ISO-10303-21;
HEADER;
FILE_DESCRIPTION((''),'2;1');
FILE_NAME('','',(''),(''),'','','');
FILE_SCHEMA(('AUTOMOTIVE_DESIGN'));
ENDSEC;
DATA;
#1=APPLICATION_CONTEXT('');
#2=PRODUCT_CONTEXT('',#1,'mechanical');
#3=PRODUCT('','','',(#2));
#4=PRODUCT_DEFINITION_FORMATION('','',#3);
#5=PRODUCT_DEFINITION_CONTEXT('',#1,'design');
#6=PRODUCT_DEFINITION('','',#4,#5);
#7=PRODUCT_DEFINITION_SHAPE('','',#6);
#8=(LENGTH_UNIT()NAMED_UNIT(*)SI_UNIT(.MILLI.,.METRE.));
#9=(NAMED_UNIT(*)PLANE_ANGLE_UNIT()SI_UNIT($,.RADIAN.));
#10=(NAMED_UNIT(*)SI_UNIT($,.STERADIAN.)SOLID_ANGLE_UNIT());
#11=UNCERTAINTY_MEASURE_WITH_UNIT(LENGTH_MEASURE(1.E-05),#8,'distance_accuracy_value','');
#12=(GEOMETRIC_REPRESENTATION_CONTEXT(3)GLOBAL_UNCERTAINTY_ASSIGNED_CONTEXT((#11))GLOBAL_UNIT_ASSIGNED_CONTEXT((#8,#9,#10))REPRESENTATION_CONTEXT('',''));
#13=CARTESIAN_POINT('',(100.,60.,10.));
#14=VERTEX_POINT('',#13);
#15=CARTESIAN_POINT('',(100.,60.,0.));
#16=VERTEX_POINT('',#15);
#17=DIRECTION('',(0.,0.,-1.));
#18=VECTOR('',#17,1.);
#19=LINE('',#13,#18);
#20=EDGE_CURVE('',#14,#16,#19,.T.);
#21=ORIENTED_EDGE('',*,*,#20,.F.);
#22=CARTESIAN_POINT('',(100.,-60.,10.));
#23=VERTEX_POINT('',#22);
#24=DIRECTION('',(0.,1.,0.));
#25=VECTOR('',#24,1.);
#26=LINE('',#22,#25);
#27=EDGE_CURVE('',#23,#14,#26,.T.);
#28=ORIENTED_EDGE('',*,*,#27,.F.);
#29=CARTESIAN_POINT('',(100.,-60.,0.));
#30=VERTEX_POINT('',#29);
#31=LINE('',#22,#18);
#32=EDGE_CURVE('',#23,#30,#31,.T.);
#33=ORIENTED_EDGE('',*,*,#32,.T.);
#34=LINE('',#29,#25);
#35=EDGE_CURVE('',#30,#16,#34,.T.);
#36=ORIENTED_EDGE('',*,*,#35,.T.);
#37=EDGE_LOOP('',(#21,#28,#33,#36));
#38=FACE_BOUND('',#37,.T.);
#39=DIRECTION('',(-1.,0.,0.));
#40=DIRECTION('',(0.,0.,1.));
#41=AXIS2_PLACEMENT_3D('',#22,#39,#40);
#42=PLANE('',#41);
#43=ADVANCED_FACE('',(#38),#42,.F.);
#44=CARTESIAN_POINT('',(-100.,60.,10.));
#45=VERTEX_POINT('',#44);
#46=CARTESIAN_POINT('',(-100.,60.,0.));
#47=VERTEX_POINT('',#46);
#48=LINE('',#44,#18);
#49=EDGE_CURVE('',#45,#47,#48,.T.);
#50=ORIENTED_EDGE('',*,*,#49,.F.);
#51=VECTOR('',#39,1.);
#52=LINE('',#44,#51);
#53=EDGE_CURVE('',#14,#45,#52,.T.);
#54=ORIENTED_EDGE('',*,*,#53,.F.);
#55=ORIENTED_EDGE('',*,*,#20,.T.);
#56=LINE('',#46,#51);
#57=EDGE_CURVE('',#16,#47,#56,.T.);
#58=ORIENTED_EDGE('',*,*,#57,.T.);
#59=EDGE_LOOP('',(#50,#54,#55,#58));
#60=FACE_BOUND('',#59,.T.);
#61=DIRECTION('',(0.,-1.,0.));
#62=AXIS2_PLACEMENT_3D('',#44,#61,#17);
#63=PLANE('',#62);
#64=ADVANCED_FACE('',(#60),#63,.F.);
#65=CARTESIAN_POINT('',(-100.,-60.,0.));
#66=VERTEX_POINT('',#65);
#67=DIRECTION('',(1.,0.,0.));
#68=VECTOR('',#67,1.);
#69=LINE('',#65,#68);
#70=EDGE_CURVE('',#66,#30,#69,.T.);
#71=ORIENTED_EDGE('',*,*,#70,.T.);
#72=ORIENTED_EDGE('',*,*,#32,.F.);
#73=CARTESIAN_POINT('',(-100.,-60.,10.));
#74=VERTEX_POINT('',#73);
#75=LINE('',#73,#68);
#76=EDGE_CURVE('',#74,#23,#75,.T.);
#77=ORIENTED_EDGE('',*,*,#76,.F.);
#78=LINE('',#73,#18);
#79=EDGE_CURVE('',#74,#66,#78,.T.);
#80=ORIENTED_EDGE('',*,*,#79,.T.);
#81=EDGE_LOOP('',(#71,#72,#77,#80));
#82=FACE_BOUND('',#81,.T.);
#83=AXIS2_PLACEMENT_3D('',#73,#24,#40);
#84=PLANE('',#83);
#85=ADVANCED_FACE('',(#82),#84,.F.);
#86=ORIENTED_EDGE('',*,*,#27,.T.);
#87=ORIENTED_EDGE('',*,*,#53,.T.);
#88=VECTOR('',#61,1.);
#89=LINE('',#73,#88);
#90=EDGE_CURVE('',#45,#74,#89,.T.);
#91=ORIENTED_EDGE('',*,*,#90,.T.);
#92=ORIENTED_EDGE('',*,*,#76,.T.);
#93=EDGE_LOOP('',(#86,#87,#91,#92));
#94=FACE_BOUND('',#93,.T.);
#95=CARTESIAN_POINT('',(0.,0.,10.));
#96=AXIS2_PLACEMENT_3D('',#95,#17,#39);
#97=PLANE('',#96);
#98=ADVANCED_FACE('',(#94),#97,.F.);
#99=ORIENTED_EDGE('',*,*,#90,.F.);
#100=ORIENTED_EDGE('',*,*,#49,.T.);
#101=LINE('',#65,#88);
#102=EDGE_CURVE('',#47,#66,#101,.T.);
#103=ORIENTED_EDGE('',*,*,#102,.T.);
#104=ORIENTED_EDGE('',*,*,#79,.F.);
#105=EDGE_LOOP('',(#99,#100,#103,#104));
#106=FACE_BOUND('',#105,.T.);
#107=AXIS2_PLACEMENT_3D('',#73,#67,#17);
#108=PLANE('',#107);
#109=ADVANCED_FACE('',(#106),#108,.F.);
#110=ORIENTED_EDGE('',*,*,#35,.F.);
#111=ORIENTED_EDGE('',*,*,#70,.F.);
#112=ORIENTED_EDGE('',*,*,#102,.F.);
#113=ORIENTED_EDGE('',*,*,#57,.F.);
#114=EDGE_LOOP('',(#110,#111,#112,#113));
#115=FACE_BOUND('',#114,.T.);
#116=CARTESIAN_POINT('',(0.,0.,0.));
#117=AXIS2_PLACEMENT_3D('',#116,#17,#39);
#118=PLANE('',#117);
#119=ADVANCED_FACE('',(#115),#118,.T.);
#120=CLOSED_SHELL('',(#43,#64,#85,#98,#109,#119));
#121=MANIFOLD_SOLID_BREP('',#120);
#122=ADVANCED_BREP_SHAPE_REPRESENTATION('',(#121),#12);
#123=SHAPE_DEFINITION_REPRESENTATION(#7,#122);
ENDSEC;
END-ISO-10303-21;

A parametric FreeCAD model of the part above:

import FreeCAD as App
import Part
import Sketcher
from FreeCAD import Vector
Q = App.Units.Quantity


def add_polygon(sketch, points):
    """Adds a closed chain of lines whose ends are joined by coincident constraints."""
    first, n = sketch.GeometryCount, len(points)
    for a, b in zip(points, points[1:] + points[:1]):
        sketch.addGeometry(Part.LineSegment(App.Vector(*a, 0), App.Vector(*b, 0)), False)
    for i in range(n):
        sketch.addConstraint(Sketcher.Constraint("Coincident", first + i, 2, first + (i + 1) % n, 1))

doc = App.newDocument("Part")
body = doc.addObject("PartDesign::Body", "Body")

# Sketch on XY plane
sketch1 = body.newObject("Sketcher::SketchObject", "Sketch")
sketch1.AttachmentSupport = (doc.getObject("XY_Plane"), [""])
sketch1.MapMode = "FlatFace"
add_polygon(sketch1, [(-100, 60), (-100, -60), (100, -60), (100, 60)])  # lines 0-3
sketch1.addConstraint(Sketcher.Constraint("Vertical", 0))
sketch1.addConstraint(Sketcher.Constraint("Horizontal", 1))
sketch1.addConstraint(Sketcher.Constraint("Vertical", 2))
sketch1.addConstraint(Sketcher.Constraint("Horizontal", 3))
sketch1.addConstraint(Sketcher.Constraint("Symmetric", 0, 2, 2, 2, -1, 1))
sketch1.addConstraint(Sketcher.Constraint("DistanceX", 1, 1, 1, 2, Q("200 mm")))
sketch1.addConstraint(Sketcher.Constraint("DistanceY", 0, 2, 0, 1, Q("120 mm")))
pad1 = body.newObject("PartDesign::Pad", "Pad")
pad1.Profile = sketch1
pad1.Length = 10

doc.recompute()
